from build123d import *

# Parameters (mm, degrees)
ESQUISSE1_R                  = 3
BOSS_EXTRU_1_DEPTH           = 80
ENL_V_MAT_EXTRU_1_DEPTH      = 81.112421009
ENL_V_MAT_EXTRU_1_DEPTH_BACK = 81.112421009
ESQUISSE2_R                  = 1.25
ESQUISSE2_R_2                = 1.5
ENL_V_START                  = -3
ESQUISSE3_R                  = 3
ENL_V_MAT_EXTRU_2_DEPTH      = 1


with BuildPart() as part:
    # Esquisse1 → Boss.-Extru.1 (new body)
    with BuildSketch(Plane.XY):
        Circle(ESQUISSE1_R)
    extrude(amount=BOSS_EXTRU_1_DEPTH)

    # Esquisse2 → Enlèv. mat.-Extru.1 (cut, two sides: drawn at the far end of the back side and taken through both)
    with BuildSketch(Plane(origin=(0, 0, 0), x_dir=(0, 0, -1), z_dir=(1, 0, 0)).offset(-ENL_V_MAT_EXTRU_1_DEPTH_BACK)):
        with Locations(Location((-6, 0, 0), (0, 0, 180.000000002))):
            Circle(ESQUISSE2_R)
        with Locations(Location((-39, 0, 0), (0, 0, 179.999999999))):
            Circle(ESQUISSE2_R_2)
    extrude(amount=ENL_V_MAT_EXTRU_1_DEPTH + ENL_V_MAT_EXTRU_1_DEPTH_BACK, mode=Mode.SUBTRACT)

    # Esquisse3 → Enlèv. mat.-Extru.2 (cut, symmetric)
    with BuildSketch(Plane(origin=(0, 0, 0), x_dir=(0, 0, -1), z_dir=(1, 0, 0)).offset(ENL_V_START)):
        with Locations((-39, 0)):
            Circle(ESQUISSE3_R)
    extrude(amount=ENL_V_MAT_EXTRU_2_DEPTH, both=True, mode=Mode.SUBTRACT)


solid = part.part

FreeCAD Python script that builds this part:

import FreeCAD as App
import Part
import Sketcher
from FreeCAD import Vector
Q = App.Units.Quantity

doc = App.newDocument("Part")
params = doc.addObject("Spreadsheet::Sheet", "Params")
for row, (alias, value) in enumerate([
    ("sketch1_diameter", "6 mm"),
    ("pad1_length", "80 mm"),
    ("sketch2_diameter", "3 mm"),
    ("sketch2_diameter2", "2.5 mm"),
    ("sketch3_diameter", "6 mm"),
    ("pocket2_length", "2 mm"),
], start=1):
    params.set(f"A{row}", alias)
    params.set(f"B{row}", "=" + value)
    params.setAlias(f"B{row}", alias)

body = doc.addObject("PartDesign::Body", "Body")

sketch1 = doc.addObject("Sketcher::SketchObject", "Sketch")
body.addObject(sketch1)
sketch1.AttachmentSupport = (doc.XY_Plane, [""])
sketch1.MapMode = "FlatFace"
sketch1.addGeometry(Part.Circle(Vector(0, 0, 0), Vector(0, 0, 1), 3), False)
sketch1.addConstraint(Sketcher.Constraint("Coincident", 0, 3, -1, 1))
sketch1.addConstraint(Sketcher.Constraint("Diameter", 0, Q("6 mm")))
sketch1.setExpression("Constraints[1]", "Params.sketch1_diameter")
pad1 = doc.addObject("PartDesign::Pad", "Pad")
body.addObject(pad1)
pad1.Profile = sketch1
pad1.setExpression("Length", "Params.pad1_length")

sketch2 = doc.addObject("Sketcher::SketchObject", "Sketch001")
body.addObject(sketch2)
sketch2.AttachmentSupport = (doc.YZ_Plane, [""])
sketch2.MapMode = "FlatFace"
sketch2.addGeometry(Part.Circle(Vector(0, 6, 0), Vector(0, 0, 1), 1.2), False)
sketch2.addGeometry(Part.Circle(Vector(0, 39, 0), Vector(0, 0, 1), 1.5), False)
sketch2.addConstraint(Sketcher.Constraint("PointOnObject", 0, 3, -2))
sketch2.addConstraint(Sketcher.Constraint("PointOnObject", 1, 3, -2))
sketch2.addConstraint(Sketcher.Constraint("Diameter", 1, Q("3 mm")))
sketch2.addConstraint(Sketcher.Constraint("Diameter", 0, Q("2.5 mm")))
sketch2.addConstraint(Sketcher.Constraint("DistanceY", -1, 1, 0, 3, Q("6 mm")))
sketch2.addConstraint(Sketcher.Constraint("DistanceY", -1, 1, 1, 3, Q("39 mm")))
sketch2.setExpression("Constraints[2]", "Params.sketch2_diameter")
sketch2.setExpression("Constraints[3]", "Params.sketch2_diameter2")
pocket1 = doc.addObject("PartDesign::Pocket", "Pocket")
body.addObject(pocket1)
pocket1.Profile = sketch2
pocket1.Type = "ThroughAll"
pocket1.Midplane = True

sketch3 = doc.addObject("Sketcher::SketchObject", "Sketch002")
body.addObject(sketch3)
sketch3.AttachmentSupport = (doc.YZ_Plane, [""])
sketch3.MapMode = "FlatFace"
sketch3.AttachmentOffset = App.Placement(Vector(0, 0, -3), App.Rotation())
sketch3.addGeometry(Part.Circle(Vector(0, 39, 0), Vector(0, 0, 1), 3), False)
sketch3.addConstraint(Sketcher.Constraint("PointOnObject", 0, 3, -2))
sketch3.addConstraint(Sketcher.Constraint("Diameter", 0, Q("6 mm")))
sketch3.addConstraint(Sketcher.Constraint("DistanceY", -1, 1, 0, 3, Q("39 mm")))
sketch3.setExpression("Constraints[1]", "Params.sketch3_diameter")
pocket2 = doc.addObject("PartDesign::Pocket", "Pocket001")
body.addObject(pocket2)
pocket2.Profile = sketch3
pocket2.setExpression("Length", "Params.pocket2_length")
pocket2.Midplane = True

doc.recompute()
